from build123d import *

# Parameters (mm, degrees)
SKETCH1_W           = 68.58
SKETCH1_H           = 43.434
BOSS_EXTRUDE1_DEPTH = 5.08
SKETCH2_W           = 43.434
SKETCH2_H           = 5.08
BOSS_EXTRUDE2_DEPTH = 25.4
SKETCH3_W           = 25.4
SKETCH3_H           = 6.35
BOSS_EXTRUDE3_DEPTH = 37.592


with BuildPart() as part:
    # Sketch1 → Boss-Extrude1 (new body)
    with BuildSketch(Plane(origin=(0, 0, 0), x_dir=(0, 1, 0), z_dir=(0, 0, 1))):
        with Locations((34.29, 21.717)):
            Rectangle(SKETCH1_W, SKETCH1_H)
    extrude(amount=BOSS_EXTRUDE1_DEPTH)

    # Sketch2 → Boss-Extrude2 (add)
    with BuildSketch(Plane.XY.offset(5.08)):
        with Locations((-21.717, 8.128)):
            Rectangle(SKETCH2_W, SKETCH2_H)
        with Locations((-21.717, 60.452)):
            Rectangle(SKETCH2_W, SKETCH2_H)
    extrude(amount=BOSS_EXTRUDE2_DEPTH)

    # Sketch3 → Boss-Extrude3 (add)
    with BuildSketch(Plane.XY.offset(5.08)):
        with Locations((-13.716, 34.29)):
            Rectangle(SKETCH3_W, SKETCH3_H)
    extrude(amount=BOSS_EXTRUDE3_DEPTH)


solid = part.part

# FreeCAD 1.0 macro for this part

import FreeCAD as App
import Part
import Sketcher
Q = App.Units.Quantity


def add_polygon(sketch, points):
    """Adds a closed chain of lines whose ends are joined by coincident constraints."""
    first, n = sketch.GeometryCount, len(points)
    for a, b in zip(points, points[1:] + points[:1]):
        sketch.addGeometry(Part.LineSegment(App.Vector(*a, 0), App.Vector(*b, 0)), False)
    for i in range(n):
        sketch.addConstraint(Sketcher.Constraint("Coincident", first + i, 2, first + (i + 1) % n, 1))

doc = App.newDocument("Part")
params = doc.addObject("Spreadsheet::Sheet", "Params")
for row, (alias, value) in enumerate([
    ("sketch1_height", "2.7 in"),
    ("sketch1_width", "1.71 in"),
    ("pad1_length", "0.2 in"),
    ("sketch2_height", "0.2 in"),
    ("sketch2_width", "1.71 in"),
    ("pad2_length", "1 in"),
    ("sketch3_width", "1 in"),
    ("sketch3_height", "0.25 in"),
    ("pad3_length", "1.48 in"),
], start=1):
    params.set(f"A{row}", alias)
    params.set(f"B{row}", "=" + value)
    params.setAlias(f"B{row}", alias)

body = doc.addObject("PartDesign::Body", "Body")

# Sketch on XY plane
sketch1 = doc.addObject("Sketcher::SketchObject", "Sketch")
body.addObject(sketch1)
sketch1.AttachmentSupport = (doc.XY_Plane, [""])
sketch1.MapMode = "FlatFace"
add_polygon(sketch1, [(-43, 0), (0, 0), (0, 69), (-43, 69)])  # lines 0-3
sketch1.addConstraint([
    Sketcher.Constraint("Horizontal", 0),
    Sketcher.Constraint("Vertical", 1),
    Sketcher.Constraint("Horizontal", 2),
    Sketcher.Constraint("Vertical", 3),
    Sketcher.Constraint("Coincident", 0, 2, -1, 1),
    Sketcher.Constraint("DistanceY", 1, 1, 1, 2, Q("2.7 in")),
    Sketcher.Constraint("DistanceX", 0, 1, 0, 2, Q("1.71 in")),
])
sketch1.setExpression("Constraints[9]", "Params.sketch1_height")
sketch1.setExpression("Constraints[10]", "Params.sketch1_width")
pad1 = doc.addObject("PartDesign::Pad", "Pad")
body.addObject(pad1)
pad1.Profile = sketch1
pad1.setExpression("Length", "Params.pad1_length")

# Sketch on XY plane
sketch2 = doc.addObject("Sketcher::SketchObject", "Sketch001")
body.addObject(sketch2)
sketch2.AttachmentSupport = (doc.XY_Plane, [""])
sketch2.MapMode = "FlatFace"
sketch2.AttachmentOffset = App.Placement(App.Vector(0, 0, 0.2 * 25.4), App.Rotation())
add_polygon(sketch2, [(-43, 11), (-43, 6), (0, 6), (0, 11)])  # lines 0-3
add_polygon(sketch2, [(-43, 63), (-43, 58), (0, 58), (0, 63)])  # lines 4-7
sketch2.addConstraint([
    Sketcher.Constraint("Vertical", 0),
    Sketcher.Constraint("Horizontal", 1),
    Sketcher.Constraint("Vertical", 2),
    Sketcher.Constraint("Horizontal", 3),
    Sketcher.Constraint("Vertical", 4),
    Sketcher.Constraint("Horizontal", 5),
    Sketcher.Constraint("Vertical", 6),
    Sketcher.Constraint("Horizontal", 7),
    Sketcher.Constraint("PointOnObject", 1, 2, -2),
    Sketcher.Constraint("PointOnObject", 5, 2, -2),
    Sketcher.Constraint("Vertical", 3, 2, 4, 2),
    Sketcher.Constraint("Equal", 2, 4),
    Sketcher.Constraint("DistanceY", 0, 2, 0, 1, Q("0.2 in")),
    Sketcher.Constraint("DistanceX", 1, 1, 1, 2, Q("1.71 in")),
    Sketcher.Constraint("DistanceY", -1, 1, 0, 2, Q("0.22 in")),
    Sketcher.Constraint("DistanceY", -1, 1, 4, 2, Q("2.28 in")),
])
sketch2.setExpression("Constraints[20]", "Params.sketch2_height")
sketch2.setExpression("Constraints[21]", "Params.sketch2_width")
pad2 = doc.addObject("PartDesign::Pad", "Pad001")
body.addObject(pad2)
pad2.Profile = sketch2
pad2.setExpression("Length", "Params.pad2_length")

# Sketch on XY plane
sketch3 = doc.addObject("Sketcher::SketchObject", "Sketch002")
body.addObject(sketch3)
sketch3.AttachmentSupport = (doc.XY_Plane, [""])
sketch3.MapMode = "FlatFace"
sketch3.AttachmentOffset = App.Placement(App.Vector(0, 0, 0.2 * 25.4), App.Rotation())
add_polygon(sketch3, [(-26, 37), (-26, 31), (-1, 31), (-1, 37)])  # lines 0-3
sketch3.addConstraint([
    Sketcher.Constraint("Vertical", 0),
    Sketcher.Constraint("Horizontal", 1),
    Sketcher.Constraint("Vertical", 2),
    Sketcher.Constraint("Horizontal", 3),
    Sketcher.Constraint("DistanceX", 1, 1, 1, 2, Q("1 in")),
    Sketcher.Constraint("DistanceY", 0, 2, 0, 1, Q("0.25 in")),
    Sketcher.Constraint("DistanceX", 0, 2, -1, 1, Q("1.04 in")),
    Sketcher.Constraint("DistanceY", -1, 1, 0, 2, Q("1.225 in")),
])
sketch3.setExpression("Constraints[8]", "Params.sketch3_width")
sketch3.setExpression("Constraints[9]", "Params.sketch3_height")
pad3 = doc.addObject("PartDesign::Pad", "Pad002")
body.addObject(pad3)
pad3.Profile = sketch3
pad3.setExpression("Length", "Params.pad3_length")

doc.recompute()
